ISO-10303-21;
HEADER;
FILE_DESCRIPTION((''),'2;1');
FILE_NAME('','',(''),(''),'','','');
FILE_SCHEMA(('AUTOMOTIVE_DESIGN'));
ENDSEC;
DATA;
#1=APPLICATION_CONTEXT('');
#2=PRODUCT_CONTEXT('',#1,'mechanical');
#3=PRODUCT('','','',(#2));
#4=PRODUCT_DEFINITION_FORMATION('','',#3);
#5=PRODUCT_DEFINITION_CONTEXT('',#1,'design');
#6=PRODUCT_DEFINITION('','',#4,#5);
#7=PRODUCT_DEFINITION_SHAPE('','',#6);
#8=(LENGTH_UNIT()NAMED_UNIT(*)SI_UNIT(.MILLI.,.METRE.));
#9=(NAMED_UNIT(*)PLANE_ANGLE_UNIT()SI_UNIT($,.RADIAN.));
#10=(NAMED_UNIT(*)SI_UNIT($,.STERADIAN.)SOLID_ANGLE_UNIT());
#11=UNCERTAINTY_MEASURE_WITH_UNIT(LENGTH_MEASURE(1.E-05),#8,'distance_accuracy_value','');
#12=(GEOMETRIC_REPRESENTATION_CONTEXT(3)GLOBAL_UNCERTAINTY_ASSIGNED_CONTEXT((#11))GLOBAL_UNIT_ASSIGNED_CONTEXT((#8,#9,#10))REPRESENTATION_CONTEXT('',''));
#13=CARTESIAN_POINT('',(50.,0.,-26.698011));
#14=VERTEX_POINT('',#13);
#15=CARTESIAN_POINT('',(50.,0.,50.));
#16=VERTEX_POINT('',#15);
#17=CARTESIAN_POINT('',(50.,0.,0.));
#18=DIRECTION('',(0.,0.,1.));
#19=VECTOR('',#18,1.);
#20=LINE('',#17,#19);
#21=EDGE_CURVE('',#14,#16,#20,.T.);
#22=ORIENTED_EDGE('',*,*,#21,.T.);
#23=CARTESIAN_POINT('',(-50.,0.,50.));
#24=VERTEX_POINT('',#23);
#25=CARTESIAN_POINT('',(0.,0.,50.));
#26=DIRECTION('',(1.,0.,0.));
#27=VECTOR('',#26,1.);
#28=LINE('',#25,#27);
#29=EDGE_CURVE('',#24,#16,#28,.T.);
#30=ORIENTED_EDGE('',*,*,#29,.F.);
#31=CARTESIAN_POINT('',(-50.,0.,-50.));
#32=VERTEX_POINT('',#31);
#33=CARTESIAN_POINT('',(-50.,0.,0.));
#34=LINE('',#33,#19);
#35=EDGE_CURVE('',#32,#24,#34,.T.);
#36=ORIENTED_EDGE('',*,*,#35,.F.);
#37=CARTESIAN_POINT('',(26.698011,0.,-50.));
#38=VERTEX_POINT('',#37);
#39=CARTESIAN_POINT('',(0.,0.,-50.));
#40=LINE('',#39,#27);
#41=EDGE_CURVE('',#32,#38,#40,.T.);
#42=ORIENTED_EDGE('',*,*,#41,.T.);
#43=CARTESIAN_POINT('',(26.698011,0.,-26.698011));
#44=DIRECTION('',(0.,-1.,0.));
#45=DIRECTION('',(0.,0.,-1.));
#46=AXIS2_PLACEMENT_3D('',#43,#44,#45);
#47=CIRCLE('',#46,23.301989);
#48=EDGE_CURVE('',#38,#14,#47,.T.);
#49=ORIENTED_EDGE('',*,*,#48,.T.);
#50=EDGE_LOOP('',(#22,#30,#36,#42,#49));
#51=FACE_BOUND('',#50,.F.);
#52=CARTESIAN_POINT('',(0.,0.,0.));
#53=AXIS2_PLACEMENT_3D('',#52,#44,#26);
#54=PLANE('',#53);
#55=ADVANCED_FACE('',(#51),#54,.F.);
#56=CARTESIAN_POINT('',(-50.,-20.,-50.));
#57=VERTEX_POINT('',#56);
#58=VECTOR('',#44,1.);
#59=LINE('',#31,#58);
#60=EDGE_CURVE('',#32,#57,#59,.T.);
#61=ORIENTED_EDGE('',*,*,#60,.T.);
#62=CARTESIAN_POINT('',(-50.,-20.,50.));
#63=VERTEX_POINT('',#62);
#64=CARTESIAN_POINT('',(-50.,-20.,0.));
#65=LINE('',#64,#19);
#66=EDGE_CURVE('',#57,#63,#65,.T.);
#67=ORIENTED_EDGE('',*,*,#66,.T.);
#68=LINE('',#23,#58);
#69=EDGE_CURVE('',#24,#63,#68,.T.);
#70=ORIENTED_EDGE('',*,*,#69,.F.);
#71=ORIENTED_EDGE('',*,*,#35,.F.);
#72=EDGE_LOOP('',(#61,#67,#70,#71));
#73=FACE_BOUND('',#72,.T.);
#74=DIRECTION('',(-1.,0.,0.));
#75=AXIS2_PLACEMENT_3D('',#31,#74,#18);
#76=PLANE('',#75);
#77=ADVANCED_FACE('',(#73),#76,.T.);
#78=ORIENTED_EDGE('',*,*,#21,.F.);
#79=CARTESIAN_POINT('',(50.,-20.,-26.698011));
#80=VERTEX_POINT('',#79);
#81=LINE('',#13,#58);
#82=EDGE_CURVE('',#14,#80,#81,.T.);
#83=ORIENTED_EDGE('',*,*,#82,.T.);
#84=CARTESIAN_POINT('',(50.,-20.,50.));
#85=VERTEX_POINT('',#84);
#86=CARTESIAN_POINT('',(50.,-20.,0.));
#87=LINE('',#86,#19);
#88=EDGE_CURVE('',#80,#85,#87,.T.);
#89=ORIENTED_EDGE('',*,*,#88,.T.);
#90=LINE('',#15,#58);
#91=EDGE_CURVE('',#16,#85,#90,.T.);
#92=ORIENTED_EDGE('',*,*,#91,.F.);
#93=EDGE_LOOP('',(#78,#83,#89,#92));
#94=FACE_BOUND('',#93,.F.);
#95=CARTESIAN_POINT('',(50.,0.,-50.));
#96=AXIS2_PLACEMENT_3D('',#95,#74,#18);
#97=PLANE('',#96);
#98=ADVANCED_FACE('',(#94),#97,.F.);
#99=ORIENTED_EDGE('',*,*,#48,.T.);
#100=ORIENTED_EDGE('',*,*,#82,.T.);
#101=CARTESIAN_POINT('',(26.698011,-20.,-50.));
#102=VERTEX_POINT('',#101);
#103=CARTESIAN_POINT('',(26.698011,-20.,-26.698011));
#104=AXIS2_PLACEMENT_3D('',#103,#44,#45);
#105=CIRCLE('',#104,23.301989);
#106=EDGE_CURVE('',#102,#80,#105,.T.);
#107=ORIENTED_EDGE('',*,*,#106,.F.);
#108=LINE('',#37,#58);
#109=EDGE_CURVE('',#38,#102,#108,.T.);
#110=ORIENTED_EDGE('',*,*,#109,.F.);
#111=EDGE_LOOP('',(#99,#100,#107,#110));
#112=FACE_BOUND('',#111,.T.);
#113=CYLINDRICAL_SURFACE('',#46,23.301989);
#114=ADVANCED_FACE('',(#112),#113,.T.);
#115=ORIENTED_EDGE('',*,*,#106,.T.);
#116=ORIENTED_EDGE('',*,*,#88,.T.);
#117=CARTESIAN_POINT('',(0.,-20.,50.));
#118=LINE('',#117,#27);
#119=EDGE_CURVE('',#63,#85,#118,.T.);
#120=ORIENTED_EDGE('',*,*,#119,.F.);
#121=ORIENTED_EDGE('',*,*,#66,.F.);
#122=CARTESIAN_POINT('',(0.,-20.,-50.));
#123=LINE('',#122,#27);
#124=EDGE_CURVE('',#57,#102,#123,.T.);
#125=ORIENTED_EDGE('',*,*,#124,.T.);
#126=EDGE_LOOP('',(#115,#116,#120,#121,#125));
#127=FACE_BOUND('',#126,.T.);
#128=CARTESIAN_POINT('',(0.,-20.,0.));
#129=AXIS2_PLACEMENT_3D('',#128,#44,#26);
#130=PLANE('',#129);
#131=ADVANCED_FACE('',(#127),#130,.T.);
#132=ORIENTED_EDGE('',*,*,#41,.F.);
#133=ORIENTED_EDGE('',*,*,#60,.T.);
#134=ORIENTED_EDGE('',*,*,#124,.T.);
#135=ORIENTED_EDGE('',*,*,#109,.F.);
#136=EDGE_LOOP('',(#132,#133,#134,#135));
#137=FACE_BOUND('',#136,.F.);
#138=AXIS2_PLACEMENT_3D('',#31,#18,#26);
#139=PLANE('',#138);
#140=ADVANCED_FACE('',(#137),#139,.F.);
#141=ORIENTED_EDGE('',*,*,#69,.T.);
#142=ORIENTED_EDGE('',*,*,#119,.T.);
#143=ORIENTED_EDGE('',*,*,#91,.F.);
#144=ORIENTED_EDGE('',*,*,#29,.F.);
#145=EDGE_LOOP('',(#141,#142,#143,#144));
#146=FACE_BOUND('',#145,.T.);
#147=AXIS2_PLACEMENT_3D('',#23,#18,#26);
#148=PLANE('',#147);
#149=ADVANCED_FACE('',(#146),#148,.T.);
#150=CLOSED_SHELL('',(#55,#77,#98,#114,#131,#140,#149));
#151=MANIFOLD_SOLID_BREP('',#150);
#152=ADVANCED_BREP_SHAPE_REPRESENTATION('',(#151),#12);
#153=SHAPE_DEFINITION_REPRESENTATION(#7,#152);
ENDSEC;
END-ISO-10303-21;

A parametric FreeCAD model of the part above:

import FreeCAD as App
import Part
import Sketcher
from FreeCAD import Vector
Q = App.Units.Quantity


def edges_at(feature, points):
    """Names of the edges that pass closest to the given points."""
    edges = feature.Shape.Edges
    near = lambda p: min(range(len(edges)), key=lambda i: edges[i].distToShape(Part.Vertex(*p))[0])
    return sorted({f"Edge{near(p) + 1}" for p in points})

doc = App.newDocument("Part")
params = doc.addObject("Spreadsheet::Sheet", "Params")
for row, (alias, value) in enumerate([
    ("sketch1_width", "100 mm"),
    ("pad1_length", "20 mm"),
    ("fillet_radius", "23.301989 mm"),
    ("pad2_length", "20 mm"),
], start=1):
    params.set(f"A{row}", alias)
    params.set(f"B{row}", "=" + value)
    params.setAlias(f"B{row}", alias)

body = doc.addObject("PartDesign::Body", "Body")

sketch1 = doc.addObject("Sketcher::SketchObject", "Sketch")
body.addObject(sketch1)
sketch1.AttachmentSupport = (doc.XZ_Plane, [""])
sketch1.MapMode = "FlatFace"
sketch1.addGeometry([
    Part.LineSegment(Vector(-50, 50, 0), Vector(-50, -50, 0)),
    Part.LineSegment(Vector(-50, -50, 0), Vector(50, -50, 0)),
    Part.LineSegment(Vector(50, -50, 0), Vector(50, 50, 0)),
    Part.LineSegment(Vector(50, 50, 0), Vector(-50, 50, 0)),
], False)
sketch1.addConstraint([
    Sketcher.Constraint("Coincident", 0, 2, 1, 1),
    Sketcher.Constraint("Coincident", 1, 2, 2, 1),
    Sketcher.Constraint("Coincident", 2, 2, 3, 1),
    Sketcher.Constraint("Coincident", 3, 2, 0, 1),
    Sketcher.Constraint("Vertical", 0),
    Sketcher.Constraint("Horizontal", 1),
    Sketcher.Constraint("Vertical", 2),
    Sketcher.Constraint("Horizontal", 3),
    Sketcher.Constraint("Symmetric", 0, 2, 2, 2, -1, 1),
    Sketcher.Constraint("Equal", 3, 0),
    Sketcher.Constraint("DistanceX", 1, 1, 1, 2, Q("100 mm")),
])
sketch1.setExpression("Constraints[10]", "Params.sketch1_width")
pad1 = doc.addObject("PartDesign::Pad", "Pad")
body.addObject(pad1)
pad1.Profile = sketch1
pad1.setExpression("Length", "Params.pad1_length")
doc.recompute()

fillet = doc.addObject("PartDesign::Fillet", "Fillet")
body.addObject(fillet)
fillet.Base = (pad1, edges_at(pad1, [(50, -10, -50)]))
fillet.setExpression("Radius", "Params.fillet_radius")

sketch2 = doc.addObject("Sketcher::SketchObject", "Sketch001")
body.addObject(sketch2)
sketch2.AttachmentSupport = (doc.XZ_Plane, [""])
sketch2.MapMode = "FlatFace"
sketch2.addGeometry(Part.Circle(Vector(25, -24, 0), Vector(0, 0, 1), 15), False)
sketch2.addConstraint([
    Sketcher.Constraint("Diameter", 0, Q("30.252908 mm")),
    Sketcher.Constraint("DistanceY", 0, 3, -1, 1, Q("23.76237 mm")),
    Sketcher.Constraint("DistanceX", -1, 1, 0, 3, Q("24.664735 mm")),
])
pad2 = doc.addObject("PartDesign::Pad", "Pad001")
body.addObject(pad2)
pad2.Profile = sketch2
pad2.setExpression("Length", "Params.pad2_length")

doc.recompute()
